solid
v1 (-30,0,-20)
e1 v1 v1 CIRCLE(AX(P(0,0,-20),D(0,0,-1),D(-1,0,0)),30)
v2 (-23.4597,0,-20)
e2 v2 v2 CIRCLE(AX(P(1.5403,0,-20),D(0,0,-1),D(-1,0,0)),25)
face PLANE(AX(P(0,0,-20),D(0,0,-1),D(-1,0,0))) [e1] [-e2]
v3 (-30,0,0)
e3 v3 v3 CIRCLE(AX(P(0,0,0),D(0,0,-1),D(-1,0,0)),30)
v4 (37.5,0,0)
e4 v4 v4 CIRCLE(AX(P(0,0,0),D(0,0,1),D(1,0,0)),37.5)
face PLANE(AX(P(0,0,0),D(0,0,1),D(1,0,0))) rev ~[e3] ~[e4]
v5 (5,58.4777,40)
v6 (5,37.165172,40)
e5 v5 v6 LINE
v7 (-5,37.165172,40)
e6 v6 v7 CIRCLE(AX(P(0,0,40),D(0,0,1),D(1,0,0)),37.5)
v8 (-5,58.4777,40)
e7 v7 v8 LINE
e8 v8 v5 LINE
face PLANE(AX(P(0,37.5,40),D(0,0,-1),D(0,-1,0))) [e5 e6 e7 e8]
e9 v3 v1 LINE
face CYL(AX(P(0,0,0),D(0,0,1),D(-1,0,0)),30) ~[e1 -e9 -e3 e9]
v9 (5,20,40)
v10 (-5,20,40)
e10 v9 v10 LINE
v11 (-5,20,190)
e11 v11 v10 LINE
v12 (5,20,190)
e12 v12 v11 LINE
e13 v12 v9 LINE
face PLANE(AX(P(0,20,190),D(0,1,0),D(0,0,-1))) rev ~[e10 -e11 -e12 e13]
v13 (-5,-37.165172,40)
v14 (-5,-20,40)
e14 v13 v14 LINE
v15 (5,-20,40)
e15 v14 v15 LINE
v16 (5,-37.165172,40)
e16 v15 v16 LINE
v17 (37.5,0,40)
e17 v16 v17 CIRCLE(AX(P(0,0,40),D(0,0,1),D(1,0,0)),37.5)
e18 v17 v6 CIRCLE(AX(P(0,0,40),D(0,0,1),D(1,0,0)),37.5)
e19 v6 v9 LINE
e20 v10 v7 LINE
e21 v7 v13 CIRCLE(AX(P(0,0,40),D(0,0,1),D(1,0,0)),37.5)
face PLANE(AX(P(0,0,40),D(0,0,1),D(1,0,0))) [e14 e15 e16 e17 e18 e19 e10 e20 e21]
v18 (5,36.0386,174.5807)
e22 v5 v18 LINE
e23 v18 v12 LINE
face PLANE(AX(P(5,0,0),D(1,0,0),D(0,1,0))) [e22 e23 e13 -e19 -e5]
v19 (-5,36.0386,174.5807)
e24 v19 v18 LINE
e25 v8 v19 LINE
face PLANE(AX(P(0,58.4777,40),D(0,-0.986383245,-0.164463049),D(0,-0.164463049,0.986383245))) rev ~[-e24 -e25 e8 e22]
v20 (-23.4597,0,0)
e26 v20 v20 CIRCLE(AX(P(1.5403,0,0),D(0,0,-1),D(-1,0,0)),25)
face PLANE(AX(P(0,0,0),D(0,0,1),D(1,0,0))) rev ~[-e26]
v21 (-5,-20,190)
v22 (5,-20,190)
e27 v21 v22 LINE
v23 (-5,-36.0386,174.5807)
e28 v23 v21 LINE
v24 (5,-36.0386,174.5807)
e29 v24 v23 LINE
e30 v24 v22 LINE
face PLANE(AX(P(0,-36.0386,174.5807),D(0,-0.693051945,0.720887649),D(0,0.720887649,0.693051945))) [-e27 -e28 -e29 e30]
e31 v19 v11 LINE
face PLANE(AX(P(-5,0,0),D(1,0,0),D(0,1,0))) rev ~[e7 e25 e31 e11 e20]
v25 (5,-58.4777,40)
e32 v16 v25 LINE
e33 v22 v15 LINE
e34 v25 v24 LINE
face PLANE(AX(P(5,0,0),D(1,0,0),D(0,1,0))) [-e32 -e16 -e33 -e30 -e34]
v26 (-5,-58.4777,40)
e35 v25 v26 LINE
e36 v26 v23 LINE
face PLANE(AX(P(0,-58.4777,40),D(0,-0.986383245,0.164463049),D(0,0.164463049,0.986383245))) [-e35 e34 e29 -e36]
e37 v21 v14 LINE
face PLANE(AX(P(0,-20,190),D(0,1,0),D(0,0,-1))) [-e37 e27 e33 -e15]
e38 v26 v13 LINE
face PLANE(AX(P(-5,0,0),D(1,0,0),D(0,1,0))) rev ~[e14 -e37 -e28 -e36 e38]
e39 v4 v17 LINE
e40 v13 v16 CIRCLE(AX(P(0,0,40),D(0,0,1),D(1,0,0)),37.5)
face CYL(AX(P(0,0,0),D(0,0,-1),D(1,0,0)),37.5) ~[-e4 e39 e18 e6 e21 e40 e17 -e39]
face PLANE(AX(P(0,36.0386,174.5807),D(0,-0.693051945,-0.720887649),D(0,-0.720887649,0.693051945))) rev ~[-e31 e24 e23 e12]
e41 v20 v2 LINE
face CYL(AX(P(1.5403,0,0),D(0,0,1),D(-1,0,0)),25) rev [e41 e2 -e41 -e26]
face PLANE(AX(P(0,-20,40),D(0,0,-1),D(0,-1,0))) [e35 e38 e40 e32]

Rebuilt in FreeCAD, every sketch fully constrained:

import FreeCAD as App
import Part
import Sketcher
from FreeCAD import Vector

doc = App.newDocument("Part")
body = doc.addObject("PartDesign::Body", "Body")

# Sketch on XY plane
sketch1 = body.newObject("Sketcher::SketchObject", "Sketch")
sketch1.AttachmentSupport = (doc.getObject("XY_Plane"), [""])
sketch1.MapMode = "FlatFace"
sketch1.addGeometry(Part.Circle(Vector(0, 0, 0), Vector(0, 0, 1), 37.5), False)
sketch1.addConstraint([
    Sketcher.Constraint("Coincident", 0, 3, -1, 1),
    Sketcher.Constraint("Diameter", 0, 75.0),
])
pad1 = body.newObject("PartDesign::Pad", "Pad")
pad1.Profile = sketch1
pad1.Length = 40

# Sketch on XY plane
sketch2 = body.newObject("Sketcher::SketchObject", "Sketch001")
sketch2.AttachmentSupport = (doc.getObject("XY_Plane"), [""])
sketch2.MapMode = "FlatFace"
sketch2.addGeometry([
    Part.Circle(Vector(0, 0, 0), Vector(0, 0, 1), 30),
    Part.Circle(Vector(1.5403, 0, 0), Vector(0, 0, 1), 25),
], False)
sketch2.addConstraint([
    Sketcher.Constraint("Coincident", 0, 3, -1, 1),
    Sketcher.Constraint("PointOnObject", 1, 3, -1),
    Sketcher.Constraint("Diameter", 0, 60.0),
    Sketcher.Constraint("Diameter", 1, 50.0),
    Sketcher.Constraint("DistanceX", -1, 1, 1, 3, 1.5403),
])
pad2 = body.newObject("PartDesign::Pad", "Pad001")
pad2.Profile = sketch2
pad2.Length = 20
pad2.Reversed = True

# Sketch on YZ plane
sketch3 = body.newObject("Sketcher::SketchObject", "Sketch002")
sketch3.AttachmentSupport = (doc.getObject("YZ_Plane"), [""])
sketch3.MapMode = "FlatFace"
sketch3.addGeometry([
    Part.LineSegment(Vector(-58.4777, 40, 0), Vector(-20, 40, 0)),  # 0
    Part.LineSegment(Vector(-20, 40, 0), Vector(-20, 190, 0)),  # 1
    Part.LineSegment(Vector(-20, 190, 0), Vector(-36.0386, 174.5807, 0)),  # 2
    Part.LineSegment(Vector(-36.0386, 174.5807, 0), Vector(-58.4777, 40, 0)),  # 3
    Part.LineSegment(Vector(20, 40, 0), Vector(58.4777, 40, 0)),  # 4
    Part.LineSegment(Vector(58.4777, 40, 0), Vector(36.0386, 174.5807, 0)),  # 5
    Part.LineSegment(Vector(36.0386, 174.5807, 0), Vector(20, 190, 0)),  # 6
    Part.LineSegment(Vector(20, 190, 0), Vector(20, 40, 0)),  # 7
], False)
sketch3.addConstraint([
    Sketcher.Constraint("Coincident", 0, 2, 1, 1),
    Sketcher.Constraint("Coincident", 1, 2, 2, 1),
    Sketcher.Constraint("Coincident", 2, 2, 3, 1),
    Sketcher.Constraint("Coincident", 3, 2, 0, 1),
    Sketcher.Constraint("Coincident", 4, 2, 5, 1),
    Sketcher.Constraint("Coincident", 5, 2, 6, 1),
    Sketcher.Constraint("Coincident", 6, 2, 7, 1),
    Sketcher.Constraint("Coincident", 7, 2, 4, 1),
    Sketcher.Constraint("Horizontal", 0),
    Sketcher.Constraint("Vertical", 1),
    Sketcher.Constraint("Horizontal", 4),
    Sketcher.Constraint("Vertical", 7),
    Sketcher.Constraint("Symmetric", 3, 2, 4, 2, -2),
    Sketcher.Constraint("Symmetric", 2, 2, 5, 2, -2),
    Sketcher.Constraint("Symmetric", 1, 2, 6, 2, -2),
    Sketcher.Constraint("DistanceY", 1, 1, 1, 2, 150.0),
    Sketcher.Constraint("DistanceY", -1, 1, 0, 2, 40.0),
    Sketcher.Constraint("DistanceX", 1, 2, 6, 2, 40.0),
    Sketcher.Constraint("DistanceX", 0, 1, 0, 2, 38.4777),
    Sketcher.Constraint("DistanceX", 3, 2, 2, 2, 22.439),
    Sketcher.Constraint("Distance", 2, 22.2484),
])
pad3 = body.newObject("PartDesign::Pad", "Pad002")
pad3.Profile = sketch3
pad3.Length = 10
pad3.Midplane = True

doc.recompute()
